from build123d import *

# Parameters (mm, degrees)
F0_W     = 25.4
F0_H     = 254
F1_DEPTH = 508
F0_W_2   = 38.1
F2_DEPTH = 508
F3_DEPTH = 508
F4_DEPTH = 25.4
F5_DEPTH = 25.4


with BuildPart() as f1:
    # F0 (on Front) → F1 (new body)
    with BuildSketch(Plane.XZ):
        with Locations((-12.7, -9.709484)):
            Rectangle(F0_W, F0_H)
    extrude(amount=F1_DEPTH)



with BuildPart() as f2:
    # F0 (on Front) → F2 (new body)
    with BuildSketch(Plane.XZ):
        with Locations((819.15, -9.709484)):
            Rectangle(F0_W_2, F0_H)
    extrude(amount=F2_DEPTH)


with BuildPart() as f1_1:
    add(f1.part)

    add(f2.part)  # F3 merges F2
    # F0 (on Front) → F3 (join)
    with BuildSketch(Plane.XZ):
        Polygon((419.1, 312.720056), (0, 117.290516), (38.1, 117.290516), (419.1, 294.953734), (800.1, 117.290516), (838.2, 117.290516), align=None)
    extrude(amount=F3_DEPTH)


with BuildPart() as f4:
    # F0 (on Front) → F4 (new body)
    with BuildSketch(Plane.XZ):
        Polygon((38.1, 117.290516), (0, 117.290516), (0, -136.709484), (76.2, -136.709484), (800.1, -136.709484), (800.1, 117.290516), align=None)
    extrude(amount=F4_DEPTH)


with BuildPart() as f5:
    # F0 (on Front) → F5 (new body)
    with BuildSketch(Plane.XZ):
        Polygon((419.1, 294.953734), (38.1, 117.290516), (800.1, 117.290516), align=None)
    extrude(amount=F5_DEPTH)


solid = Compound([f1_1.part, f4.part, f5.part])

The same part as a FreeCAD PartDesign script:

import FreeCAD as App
import Part
import Sketcher

V = App.Vector
Q = App.Units.Quantity

doc = App.newDocument("Part")
body = doc.addObject("PartDesign::Body", "Body")

# Sketch on XZ plane
sketch1 = body.newObject("Sketcher::SketchObject", "Sketch")
sketch1.AttachmentSupport = (doc.getObject("XZ_Plane"), [""])
sketch1.MapMode = "FlatFace"
sketch1.addGeometry(Part.LineSegment(V(-25.4, 117.290516, 0), V(-25.4, -136.709484, 0)), False)
sketch1.addGeometry(Part.LineSegment(V(-25.4, -136.709484, 0), V(0, -136.709484, 0)), False)
sketch1.addGeometry(Part.LineSegment(V(0, -136.709484, 0), V(0, 117.290516, 0)), False)
sketch1.addGeometry(Part.LineSegment(V(0, 117.290516, 0), V(-25.4, 117.290516, 0)), False)
sketch1.addConstraint(Sketcher.Constraint("Coincident", 0, 2, 1, 1))
sketch1.addConstraint(Sketcher.Constraint("Coincident", 1, 2, 2, 1))
sketch1.addConstraint(Sketcher.Constraint("Coincident", 2, 2, 3, 1))
sketch1.addConstraint(Sketcher.Constraint("Coincident", 3, 2, 0, 1))
sketch1.addConstraint(Sketcher.Constraint("Vertical", 0))
sketch1.addConstraint(Sketcher.Constraint("Horizontal", 1))
sketch1.addConstraint(Sketcher.Constraint("Vertical", 2))
sketch1.addConstraint(Sketcher.Constraint("Horizontal", 3))
sketch1.addConstraint(Sketcher.Constraint("PointOnObject", 1, 2, -2))
sketch1.addConstraint(Sketcher.Constraint("DistanceX", 1, 1, 1, 2, Q("1 in")))
sketch1.addConstraint(Sketcher.Constraint("DistanceY", 0, 2, 0, 1, Q("10 in")))
sketch1.addConstraint(Sketcher.Constraint("DistanceY", 0, 2, -1, 1, 136.709484))
pad1 = body.newObject("PartDesign::Pad", "Pad")
pad1.Profile = sketch1
pad1.Length = Q("20 in")
body2 = doc.addObject("PartDesign::Body", "Body001")

# Sketch on XZ plane
sketch2 = body2.newObject("Sketcher::SketchObject", "Sketch001")
sketch2.AttachmentSupport = (doc.getObject("XZ_Plane001"), [""])
sketch2.MapMode = "FlatFace"
sketch2.addGeometry(Part.LineSegment(V(800.1, 117.290516, 0), V(800.1, -136.709484, 0)), False)
sketch2.addGeometry(Part.LineSegment(V(800.1, -136.709484, 0), V(838.2, -136.709484, 0)), False)
sketch2.addGeometry(Part.LineSegment(V(838.2, -136.709484, 0), V(838.2, 117.290516, 0)), False)
sketch2.addGeometry(Part.LineSegment(V(838.2, 117.290516, 0), V(800.1, 117.290516, 0)), False)
sketch2.addConstraint(Sketcher.Constraint("Coincident", 0, 2, 1, 1))
sketch2.addConstraint(Sketcher.Constraint("Coincident", 1, 2, 2, 1))
sketch2.addConstraint(Sketcher.Constraint("Coincident", 2, 2, 3, 1))
sketch2.addConstraint(Sketcher.Constraint("Coincident", 3, 2, 0, 1))
sketch2.addConstraint(Sketcher.Constraint("Vertical", 0))
sketch2.addConstraint(Sketcher.Constraint("Horizontal", 1))
sketch2.addConstraint(Sketcher.Constraint("Vertical", 2))
sketch2.addConstraint(Sketcher.Constraint("Horizontal", 3))
sketch2.addConstraint(Sketcher.Constraint("DistanceY", 0, 2, 0, 1, Q("10 in")))
sketch2.addConstraint(Sketcher.Constraint("DistanceX", 1, 1, 1, 2, Q("1.5 in")))
sketch2.addConstraint(Sketcher.Constraint("DistanceX", -1, 1, 1, 2, Q("33 in")))
sketch2.addConstraint(Sketcher.Constraint("DistanceY", 0, 2, -1, 1, 136.709484))
pad2 = body2.newObject("PartDesign::Pad", "Pad001")
pad2.Profile = sketch2
pad2.Length = Q("20 in")
body.AllowCompound = True
doc.recompute()

boolean = body.newObject("PartDesign::Boolean", "Boolean")
boolean.Type = "Fuse"
boolean.addObjects([body2])

# Sketch on XZ plane
sketch3 = body.newObject("Sketcher::SketchObject", "Sketch002")
sketch3.AttachmentSupport = (doc.getObject("XZ_Plane"), [""])
sketch3.MapMode = "FlatFace"
sketch3.addGeometry(Part.LineSegment(V(419.1, 312.720056, 0), V(0, 117.290516, 0)), False)
sketch3.addGeometry(Part.LineSegment(V(0, 117.290516, 0), V(38.1, 117.290516, 0)), False)
sketch3.addGeometry(Part.LineSegment(V(38.1, 117.290516, 0), V(419.1, 294.953734, 0)), False)
sketch3.addGeometry(Part.LineSegment(V(419.1, 294.953734, 0), V(800.1, 117.290516, 0)), False)
sketch3.addGeometry(Part.LineSegment(V(800.1, 117.290516, 0), V(838.2, 117.290516, 0)), False)
sketch3.addGeometry(Part.LineSegment(V(838.2, 117.290516, 0), V(419.1, 312.720056, 0)), False)
sketch3.addConstraint(Sketcher.Constraint("Coincident", 0, 2, 1, 1))
sketch3.addConstraint(Sketcher.Constraint("Coincident", 1, 2, 2, 1))
sketch3.addConstraint(Sketcher.Constraint("Coincident", 2, 2, 3, 1))
sketch3.addConstraint(Sketcher.Constraint("Coincident", 3, 2, 4, 1))
sketch3.addConstraint(Sketcher.Constraint("Coincident", 4, 2, 5, 1))
sketch3.addConstraint(Sketcher.Constraint("Coincident", 5, 2, 0, 1))
sketch3.addConstraint(Sketcher.Constraint("Horizontal", 1))
sketch3.addConstraint(Sketcher.Constraint("Horizontal", 4))
sketch3.addConstraint(Sketcher.Constraint("PointOnObject", 0, 2, -2))
sketch3.addConstraint(Sketcher.Constraint("Parallel", 0, 2))
sketch3.addConstraint(Sketcher.Constraint("Parallel", 3, 5))
sketch3.addConstraint(Sketcher.Constraint("Horizontal", 1, 2, 3, 2))
sketch3.addConstraint(Sketcher.Constraint("Vertical", 2, 2, 5, 2))
sketch3.addConstraint(Sketcher.Constraint("Equal", 1, 4))
sketch3.addConstraint(Sketcher.Constraint("DistanceX", 1, 1, 1, 2, Q("1.5 in")))
sketch3.addConstraint(Sketcher.Constraint("DistanceX", -1, 1, 4, 2, Q("33 in")))
sketch3.addConstraint(Sketcher.Constraint("Angle", 0, Q("-155 deg")))
sketch3.addConstraint(Sketcher.Constraint("DistanceY", -1, 1, 0, 2, 117.290516))
pad3 = body.newObject("PartDesign::Pad", "Pad002")
pad3.Profile = sketch3
pad3.Length = Q("20 in")
body3 = doc.addObject("PartDesign::Body", "Body002")

# Sketch on XZ plane
sketch4 = body3.newObject("Sketcher::SketchObject", "Sketch003")
sketch4.AttachmentSupport = (doc.getObject("XZ_Plane002"), [""])
sketch4.MapMode = "FlatFace"
sketch4.addGeometry(Part.LineSegment(V(0, 117.290516, 0), V(0, -136.709484, 0)), False)
sketch4.addGeometry(Part.LineSegment(V(0, -136.709484, 0), V(800.1, -136.709484, 0)), False)
sketch4.addGeometry(Part.LineSegment(V(800.1, -136.709484, 0), V(800.1, 117.290516, 0)), False)
sketch4.addGeometry(Part.LineSegment(V(800.1, 117.290516, 0), V(0, 117.290516, 0)), False)
sketch4.addConstraint(Sketcher.Constraint("Coincident", 0, 2, 1, 1))
sketch4.addConstraint(Sketcher.Constraint("Coincident", 1, 2, 2, 1))
sketch4.addConstraint(Sketcher.Constraint("Coincident", 2, 2, 3, 1))
sketch4.addConstraint(Sketcher.Constraint("Coincident", 3, 2, 0, 1))
sketch4.addConstraint(Sketcher.Constraint("Vertical", 0))
sketch4.addConstraint(Sketcher.Constraint("Horizontal", 1))
sketch4.addConstraint(Sketcher.Constraint("Vertical", 2))
sketch4.addConstraint(Sketcher.Constraint("Horizontal", 3))
sketch4.addConstraint(Sketcher.Constraint("PointOnObject", 0, 2, -2))
sketch4.addConstraint(Sketcher.Constraint("DistanceY", 0, 2, 0, 1, Q("10 in")))
sketch4.addConstraint(Sketcher.Constraint("DistanceX", 1, 1, 1, 2, Q("31.5 in")))
sketch4.addConstraint(Sketcher.Constraint("DistanceY", 0, 2, -1, 1, 136.709484))
pad4 = body3.newObject("PartDesign::Pad", "Pad003")
pad4.Profile = sketch4
pad4.Length = Q("1 in")
body4 = doc.addObject("PartDesign::Body", "Body003")

# Sketch on XZ plane
sketch5 = body4.newObject("Sketcher::SketchObject", "Sketch004")
sketch5.AttachmentSupport = (doc.getObject("XZ_Plane003"), [""])
sketch5.MapMode = "FlatFace"
sketch5.addGeometry(Part.LineSegment(V(419.1, 294.953734, 0), V(38.1, 117.290516, 0)), False)
sketch5.addGeometry(Part.LineSegment(V(38.1, 117.290516, 0), V(800.1, 117.290516, 0)), False)
sketch5.addGeometry(Part.LineSegment(V(800.1, 117.290516, 0), V(419.1, 294.953734, 0)), False)
sketch5.addConstraint(Sketcher.Constraint("Coincident", 0, 2, 1, 1))
sketch5.addConstraint(Sketcher.Constraint("Coincident", 1, 2, 2, 1))
sketch5.addConstraint(Sketcher.Constraint("Coincident", 2, 2, 0, 1))
sketch5.addConstraint(Sketcher.Constraint("Horizontal", 1))
sketch5.addConstraint(Sketcher.Constraint("Equal", 0, 2))
sketch5.addConstraint(Sketcher.Constraint("DistanceX", 1, 1, 1, 2, Q("30 in")))
sketch5.addConstraint(Sketcher.Constraint("Angle", 0, Q("-155 deg")))
sketch5.addConstraint(Sketcher.Constraint("DistanceX", -1, 1, 0, 2, Q("1.5 in")))
sketch5.addConstraint(Sketcher.Constraint("DistanceY", -1, 1, 0, 2, 117.290516))
pad5 = body4.newObject("PartDesign::Pad", "Pad004")
pad5.Profile = sketch5
pad5.Length = Q("1 in")

doc.recompute()
